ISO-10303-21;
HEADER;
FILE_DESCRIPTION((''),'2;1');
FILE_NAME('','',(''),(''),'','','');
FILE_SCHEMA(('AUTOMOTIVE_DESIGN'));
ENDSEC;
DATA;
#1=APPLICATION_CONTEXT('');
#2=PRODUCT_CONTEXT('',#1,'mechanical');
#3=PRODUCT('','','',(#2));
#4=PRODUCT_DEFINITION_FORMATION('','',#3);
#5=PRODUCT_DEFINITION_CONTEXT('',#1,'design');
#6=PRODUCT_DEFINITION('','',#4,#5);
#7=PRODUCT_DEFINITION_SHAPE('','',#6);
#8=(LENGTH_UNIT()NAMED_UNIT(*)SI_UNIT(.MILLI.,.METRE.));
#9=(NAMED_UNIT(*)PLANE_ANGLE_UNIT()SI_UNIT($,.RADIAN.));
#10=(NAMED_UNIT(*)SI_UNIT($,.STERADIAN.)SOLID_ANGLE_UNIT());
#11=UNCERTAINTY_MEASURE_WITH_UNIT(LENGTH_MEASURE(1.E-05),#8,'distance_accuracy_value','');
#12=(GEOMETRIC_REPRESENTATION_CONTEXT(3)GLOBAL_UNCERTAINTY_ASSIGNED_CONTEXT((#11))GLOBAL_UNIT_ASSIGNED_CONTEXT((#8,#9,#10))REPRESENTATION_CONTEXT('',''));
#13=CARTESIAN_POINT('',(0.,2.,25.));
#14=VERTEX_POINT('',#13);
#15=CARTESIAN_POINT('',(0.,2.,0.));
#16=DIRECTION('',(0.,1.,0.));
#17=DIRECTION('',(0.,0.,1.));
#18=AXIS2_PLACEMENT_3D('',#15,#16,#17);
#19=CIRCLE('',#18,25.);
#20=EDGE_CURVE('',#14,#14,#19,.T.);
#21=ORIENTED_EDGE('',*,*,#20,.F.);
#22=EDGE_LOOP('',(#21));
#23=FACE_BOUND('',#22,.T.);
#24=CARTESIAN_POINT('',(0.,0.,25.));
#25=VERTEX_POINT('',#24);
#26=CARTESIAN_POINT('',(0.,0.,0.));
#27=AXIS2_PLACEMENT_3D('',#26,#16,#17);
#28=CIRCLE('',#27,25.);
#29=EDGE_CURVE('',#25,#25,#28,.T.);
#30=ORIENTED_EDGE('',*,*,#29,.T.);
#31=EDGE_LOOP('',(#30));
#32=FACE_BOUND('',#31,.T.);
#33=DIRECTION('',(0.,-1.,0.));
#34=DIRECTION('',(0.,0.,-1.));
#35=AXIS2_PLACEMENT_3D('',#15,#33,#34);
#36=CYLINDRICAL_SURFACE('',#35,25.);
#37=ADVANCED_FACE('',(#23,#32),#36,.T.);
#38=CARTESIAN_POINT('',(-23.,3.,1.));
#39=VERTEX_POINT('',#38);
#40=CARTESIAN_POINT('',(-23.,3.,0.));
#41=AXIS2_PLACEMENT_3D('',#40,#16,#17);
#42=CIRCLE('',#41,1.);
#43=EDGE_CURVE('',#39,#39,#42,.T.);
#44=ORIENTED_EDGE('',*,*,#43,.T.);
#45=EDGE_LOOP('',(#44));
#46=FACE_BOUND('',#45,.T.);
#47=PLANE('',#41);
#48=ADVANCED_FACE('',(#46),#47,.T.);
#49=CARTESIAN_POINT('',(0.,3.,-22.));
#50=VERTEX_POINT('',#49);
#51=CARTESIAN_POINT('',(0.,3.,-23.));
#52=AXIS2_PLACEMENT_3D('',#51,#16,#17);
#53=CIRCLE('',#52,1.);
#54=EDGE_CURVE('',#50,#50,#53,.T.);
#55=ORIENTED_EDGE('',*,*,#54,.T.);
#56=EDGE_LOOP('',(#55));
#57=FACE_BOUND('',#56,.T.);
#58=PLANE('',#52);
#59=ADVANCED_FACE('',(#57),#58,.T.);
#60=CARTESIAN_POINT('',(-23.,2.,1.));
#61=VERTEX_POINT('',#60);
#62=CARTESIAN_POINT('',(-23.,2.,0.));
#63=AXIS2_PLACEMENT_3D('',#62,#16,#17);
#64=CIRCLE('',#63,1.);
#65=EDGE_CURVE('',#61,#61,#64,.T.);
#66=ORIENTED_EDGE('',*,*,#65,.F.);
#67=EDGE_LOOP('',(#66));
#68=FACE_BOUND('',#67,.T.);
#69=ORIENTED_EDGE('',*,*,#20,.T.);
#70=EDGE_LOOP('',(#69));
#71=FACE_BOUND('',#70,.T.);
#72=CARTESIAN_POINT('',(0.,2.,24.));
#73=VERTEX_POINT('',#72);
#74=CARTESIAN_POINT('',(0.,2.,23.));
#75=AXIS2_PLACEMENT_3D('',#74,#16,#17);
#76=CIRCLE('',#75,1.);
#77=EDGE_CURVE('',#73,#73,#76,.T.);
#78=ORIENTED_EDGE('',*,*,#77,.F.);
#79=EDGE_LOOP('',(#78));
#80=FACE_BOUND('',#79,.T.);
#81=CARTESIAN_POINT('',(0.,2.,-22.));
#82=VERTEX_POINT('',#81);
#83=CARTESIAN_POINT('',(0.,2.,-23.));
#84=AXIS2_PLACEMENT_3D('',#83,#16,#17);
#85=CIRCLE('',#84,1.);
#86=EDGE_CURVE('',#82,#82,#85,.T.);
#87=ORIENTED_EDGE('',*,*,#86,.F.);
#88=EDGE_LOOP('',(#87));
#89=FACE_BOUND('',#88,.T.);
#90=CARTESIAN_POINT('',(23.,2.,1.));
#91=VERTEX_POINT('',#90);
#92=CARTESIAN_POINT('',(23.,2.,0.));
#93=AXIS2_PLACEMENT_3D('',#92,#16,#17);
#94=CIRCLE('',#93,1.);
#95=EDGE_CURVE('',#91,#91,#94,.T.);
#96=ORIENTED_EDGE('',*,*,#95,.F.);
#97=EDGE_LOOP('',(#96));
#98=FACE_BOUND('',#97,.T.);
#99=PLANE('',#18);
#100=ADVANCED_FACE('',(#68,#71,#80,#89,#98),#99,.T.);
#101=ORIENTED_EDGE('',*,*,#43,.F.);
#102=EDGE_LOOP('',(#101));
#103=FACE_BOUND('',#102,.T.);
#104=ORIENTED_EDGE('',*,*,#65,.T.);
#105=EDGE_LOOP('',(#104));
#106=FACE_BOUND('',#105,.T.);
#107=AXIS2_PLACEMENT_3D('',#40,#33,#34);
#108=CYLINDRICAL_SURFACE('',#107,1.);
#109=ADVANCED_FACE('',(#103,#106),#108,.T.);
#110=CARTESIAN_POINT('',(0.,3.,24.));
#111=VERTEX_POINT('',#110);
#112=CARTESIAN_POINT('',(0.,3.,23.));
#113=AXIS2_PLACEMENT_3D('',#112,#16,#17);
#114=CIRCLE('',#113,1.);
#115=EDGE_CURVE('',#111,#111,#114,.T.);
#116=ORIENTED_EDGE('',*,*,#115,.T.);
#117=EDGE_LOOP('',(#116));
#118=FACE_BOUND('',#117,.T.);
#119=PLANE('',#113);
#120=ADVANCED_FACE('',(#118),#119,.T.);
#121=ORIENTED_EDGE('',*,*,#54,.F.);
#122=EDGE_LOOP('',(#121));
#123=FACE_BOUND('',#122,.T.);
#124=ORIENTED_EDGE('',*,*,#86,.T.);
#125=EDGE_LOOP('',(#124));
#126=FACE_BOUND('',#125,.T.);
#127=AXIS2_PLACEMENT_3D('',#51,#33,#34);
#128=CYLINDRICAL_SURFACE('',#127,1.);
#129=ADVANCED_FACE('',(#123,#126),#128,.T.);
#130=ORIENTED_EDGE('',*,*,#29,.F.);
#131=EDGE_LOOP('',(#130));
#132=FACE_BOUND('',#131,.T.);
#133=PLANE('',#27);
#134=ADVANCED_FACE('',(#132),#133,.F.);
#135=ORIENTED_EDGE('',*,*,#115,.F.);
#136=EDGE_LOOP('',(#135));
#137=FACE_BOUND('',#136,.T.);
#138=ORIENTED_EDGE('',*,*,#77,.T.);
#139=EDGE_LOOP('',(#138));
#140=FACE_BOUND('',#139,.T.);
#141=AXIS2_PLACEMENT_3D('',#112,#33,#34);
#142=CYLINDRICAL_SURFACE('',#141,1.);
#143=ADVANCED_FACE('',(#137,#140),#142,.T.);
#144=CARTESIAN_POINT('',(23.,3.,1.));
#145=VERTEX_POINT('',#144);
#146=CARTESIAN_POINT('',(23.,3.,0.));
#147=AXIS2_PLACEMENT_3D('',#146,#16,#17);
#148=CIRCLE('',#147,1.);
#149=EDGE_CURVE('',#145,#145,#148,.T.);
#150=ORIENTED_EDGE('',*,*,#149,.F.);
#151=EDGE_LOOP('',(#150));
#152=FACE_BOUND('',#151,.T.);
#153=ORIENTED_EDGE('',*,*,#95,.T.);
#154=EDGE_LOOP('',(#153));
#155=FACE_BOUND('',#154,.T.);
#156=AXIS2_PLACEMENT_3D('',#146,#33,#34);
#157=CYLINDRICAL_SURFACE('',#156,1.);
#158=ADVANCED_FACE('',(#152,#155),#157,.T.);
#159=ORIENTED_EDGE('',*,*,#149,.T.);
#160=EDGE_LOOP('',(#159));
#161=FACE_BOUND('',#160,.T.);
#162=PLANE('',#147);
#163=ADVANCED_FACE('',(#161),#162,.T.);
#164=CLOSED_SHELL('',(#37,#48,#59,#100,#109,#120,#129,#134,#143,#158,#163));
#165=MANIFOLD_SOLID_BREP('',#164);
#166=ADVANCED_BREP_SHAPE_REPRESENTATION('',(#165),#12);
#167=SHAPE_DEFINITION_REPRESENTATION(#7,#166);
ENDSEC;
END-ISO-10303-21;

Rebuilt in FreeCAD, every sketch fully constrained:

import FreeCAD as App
import Part
import Sketcher
Q = App.Units.Quantity

doc = App.newDocument("Part")
body = doc.addObject("PartDesign::Body", "Body")

sketch1 = body.newObject("Sketcher::SketchObject", "Sketch")
sketch1.AttachmentSupport = (doc.getObject("XZ_Plane"), [""])
sketch1.MapMode = "FlatFace"
sketch1.addGeometry(Part.Circle(App.Vector(0, 0, 0), App.Vector(0, 0, 1), 25), False)
sketch1.addConstraint([
    Sketcher.Constraint("Coincident", 0, 3, -1, 1),
    Sketcher.Constraint("Diameter", 0, Q("50 mm")),
])
pad1 = body.newObject("PartDesign::Pad", "Pad")
pad1.Profile = sketch1
pad1.Length = 2
pad1.Reversed = True

sketch2 = body.newObject("Sketcher::SketchObject", "Sketch001")
sketch2.AttachmentSupport = (doc.getObject("XZ_Plane"), [""])
sketch2.MapMode = "FlatFace"
sketch2.AttachmentOffset = App.Placement(App.Vector(0, 0, -2), App.Rotation())
sketch2.addGeometry([
    Part.Circle(App.Vector(0, -23, 0), App.Vector(0, 0, 1), 1),
    Part.Circle(App.Vector(23, 0, 0), App.Vector(0, 0, 1), 1),
    Part.Circle(App.Vector(0, 23, 0), App.Vector(0, 0, 1), 1),
    Part.Circle(App.Vector(-23, 0, 0), App.Vector(0, 0, 1), 1),
], False)
sketch2.addConstraint([
    Sketcher.Constraint("Equal", 0, 1),
    Sketcher.Constraint("Equal", 1, 2),
    Sketcher.Constraint("Equal", 2, 3),
    Sketcher.Constraint("Symmetric", 0, 3, 2, 3, -1, 1),
    Sketcher.Constraint("Symmetric", 1, 3, 3, 3, -1, 1),
    Sketcher.Constraint("PointOnObject", 0, 3, -2),
    Sketcher.Constraint("PointOnObject", 1, 3, -1),
    Sketcher.Constraint("Diameter", 0, Q("2 mm")),
    Sketcher.Constraint("DistanceY", 0, 3, -1, 1, Q("23 mm")),
    Sketcher.Constraint("DistanceX", -1, 1, 1, 3, Q("23 mm")),
])
pad2 = body.newObject("PartDesign::Pad", "Pad001")
pad2.Profile = sketch2
pad2.Length = 1
pad2.Reversed = True

doc.recompute()
